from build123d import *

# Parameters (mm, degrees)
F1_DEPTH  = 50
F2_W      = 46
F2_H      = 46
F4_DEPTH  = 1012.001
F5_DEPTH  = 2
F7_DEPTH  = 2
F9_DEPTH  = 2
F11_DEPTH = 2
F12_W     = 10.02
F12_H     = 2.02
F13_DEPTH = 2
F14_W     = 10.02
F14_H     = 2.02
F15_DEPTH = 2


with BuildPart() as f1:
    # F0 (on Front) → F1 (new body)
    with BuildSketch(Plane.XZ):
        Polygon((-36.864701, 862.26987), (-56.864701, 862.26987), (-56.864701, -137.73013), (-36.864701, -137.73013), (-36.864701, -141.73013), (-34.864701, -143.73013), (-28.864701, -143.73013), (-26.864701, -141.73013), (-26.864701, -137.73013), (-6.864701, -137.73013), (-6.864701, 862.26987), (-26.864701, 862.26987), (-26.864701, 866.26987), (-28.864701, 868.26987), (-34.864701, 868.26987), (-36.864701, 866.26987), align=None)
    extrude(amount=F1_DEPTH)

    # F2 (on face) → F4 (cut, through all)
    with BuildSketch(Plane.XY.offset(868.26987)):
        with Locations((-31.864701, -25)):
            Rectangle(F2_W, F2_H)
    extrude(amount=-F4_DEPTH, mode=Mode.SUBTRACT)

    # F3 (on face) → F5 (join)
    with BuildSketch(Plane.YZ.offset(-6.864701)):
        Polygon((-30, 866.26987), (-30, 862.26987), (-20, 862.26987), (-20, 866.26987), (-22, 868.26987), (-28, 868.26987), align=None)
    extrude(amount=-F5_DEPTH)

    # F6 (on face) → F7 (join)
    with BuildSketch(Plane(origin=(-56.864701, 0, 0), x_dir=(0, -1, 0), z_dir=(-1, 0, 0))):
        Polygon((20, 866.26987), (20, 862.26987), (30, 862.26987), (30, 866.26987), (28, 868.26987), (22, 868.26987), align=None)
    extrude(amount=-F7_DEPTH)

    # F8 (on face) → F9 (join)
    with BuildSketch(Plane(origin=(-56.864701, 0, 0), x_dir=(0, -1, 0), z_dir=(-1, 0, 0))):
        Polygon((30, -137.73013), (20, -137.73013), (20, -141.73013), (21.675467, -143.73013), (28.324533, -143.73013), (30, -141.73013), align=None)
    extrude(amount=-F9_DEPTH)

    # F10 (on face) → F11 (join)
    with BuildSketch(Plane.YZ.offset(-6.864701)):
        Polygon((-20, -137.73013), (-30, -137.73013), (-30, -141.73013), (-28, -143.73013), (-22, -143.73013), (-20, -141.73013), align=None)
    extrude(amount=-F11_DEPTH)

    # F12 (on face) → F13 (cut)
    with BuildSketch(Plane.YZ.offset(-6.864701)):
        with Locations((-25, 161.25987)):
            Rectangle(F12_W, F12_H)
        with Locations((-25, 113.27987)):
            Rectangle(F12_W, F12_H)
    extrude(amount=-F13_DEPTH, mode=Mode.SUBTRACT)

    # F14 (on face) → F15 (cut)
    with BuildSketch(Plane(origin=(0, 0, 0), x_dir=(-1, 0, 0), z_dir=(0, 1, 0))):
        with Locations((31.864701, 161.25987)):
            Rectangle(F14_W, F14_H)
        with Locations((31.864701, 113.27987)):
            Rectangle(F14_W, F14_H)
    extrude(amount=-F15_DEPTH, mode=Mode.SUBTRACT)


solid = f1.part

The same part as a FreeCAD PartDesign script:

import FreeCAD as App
import Part
import Sketcher

V = App.Vector

doc = App.newDocument("Part")
body = doc.addObject("PartDesign::Body", "Body")

# Sketch on XZ plane
sketch1 = body.newObject("Sketcher::SketchObject", "Sketch")
sketch1.AttachmentSupport = (doc.getObject("XZ_Plane"), [""])
sketch1.MapMode = "FlatFace"
sketch1.addGeometry(Part.LineSegment(V(-36.9, 862.3, 0), V(-56.9, 862.3, 0)), False)
sketch1.addGeometry(Part.LineSegment(V(-56.9, 862.3, 0), V(-56.9, -137.7, 0)), False)
sketch1.addGeometry(Part.LineSegment(V(-56.9, -137.7, 0), V(-36.9, -137.7, 0)), False)
sketch1.addGeometry(Part.LineSegment(V(-36.9, -137.7, 0), V(-36.9, -141.7, 0)), False)
sketch1.addGeometry(Part.LineSegment(V(-36.9, -141.7, 0), V(-34.9, -143.7, 0)), False)
sketch1.addGeometry(Part.LineSegment(V(-34.9, -143.7, 0), V(-28.9, -143.7, 0)), False)
sketch1.addGeometry(Part.LineSegment(V(-28.9, -143.7, 0), V(-26.9, -141.7, 0)), False)
sketch1.addGeometry(Part.LineSegment(V(-26.9, -141.7, 0), V(-26.9, -137.7, 0)), False)
sketch1.addGeometry(Part.LineSegment(V(-26.9, -137.7, 0), V(-6.9, -137.7, 0)), False)
sketch1.addGeometry(Part.LineSegment(V(-6.9, -137.7, 0), V(-6.9, 862.3, 0)), False)
sketch1.addGeometry(Part.LineSegment(V(-6.9, 862.3, 0), V(-26.9, 862.3, 0)), False)
sketch1.addGeometry(Part.LineSegment(V(-26.9, 862.3, 0), V(-26.9, 866.3, 0)), False)
sketch1.addGeometry(Part.LineSegment(V(-26.9, 866.3, 0), V(-28.9, 868.3, 0)), False)
sketch1.addGeometry(Part.LineSegment(V(-28.9, 868.3, 0), V(-34.9, 868.3, 0)), False)
sketch1.addGeometry(Part.LineSegment(V(-34.9, 868.3, 0), V(-36.9, 866.3, 0)), False)
sketch1.addGeometry(Part.LineSegment(V(-36.9, 866.3, 0), V(-36.9, 862.3, 0)), False)
sketch1.addConstraint(Sketcher.Constraint("Coincident", 0, 2, 1, 1))
sketch1.addConstraint(Sketcher.Constraint("Coincident", 1, 2, 2, 1))
sketch1.addConstraint(Sketcher.Constraint("Coincident", 2, 2, 3, 1))
sketch1.addConstraint(Sketcher.Constraint("Coincident", 3, 2, 4, 1))
sketch1.addConstraint(Sketcher.Constraint("Coincident", 4, 2, 5, 1))
sketch1.addConstraint(Sketcher.Constraint("Coincident", 5, 2, 6, 1))
sketch1.addConstraint(Sketcher.Constraint("Coincident", 6, 2, 7, 1))
sketch1.addConstraint(Sketcher.Constraint("Coincident", 7, 2, 8, 1))
sketch1.addConstraint(Sketcher.Constraint("Coincident", 8, 2, 9, 1))
sketch1.addConstraint(Sketcher.Constraint("Coincident", 9, 2, 10, 1))
sketch1.addConstraint(Sketcher.Constraint("Coincident", 10, 2, 11, 1))
sketch1.addConstraint(Sketcher.Constraint("Coincident", 11, 2, 12, 1))
sketch1.addConstraint(Sketcher.Constraint("Coincident", 12, 2, 13, 1))
sketch1.addConstraint(Sketcher.Constraint("Coincident", 13, 2, 14, 1))
sketch1.addConstraint(Sketcher.Constraint("Coincident", 14, 2, 15, 1))
sketch1.addConstraint(Sketcher.Constraint("Coincident", 15, 2, 0, 1))
sketch1.addConstraint(Sketcher.Constraint("Horizontal", 0))
sketch1.addConstraint(Sketcher.Constraint("Vertical", 1))
sketch1.addConstraint(Sketcher.Constraint("Horizontal", 2))
sketch1.addConstraint(Sketcher.Constraint("Vertical", 3))
sketch1.addConstraint(Sketcher.Constraint("Horizontal", 5))
sketch1.addConstraint(Sketcher.Constraint("Vertical", 7))
sketch1.addConstraint(Sketcher.Constraint("Horizontal", 8))
sketch1.addConstraint(Sketcher.Constraint("Vertical", 9))
sketch1.addConstraint(Sketcher.Constraint("Horizontal", 10))
sketch1.addConstraint(Sketcher.Constraint("Vertical", 11))
sketch1.addConstraint(Sketcher.Constraint("Horizontal", 13))
sketch1.addConstraint(Sketcher.Constraint("Vertical", 15))
sketch1.addConstraint(Sketcher.Constraint("Perpendicular", 4, 6))
sketch1.addConstraint(Sketcher.Constraint("Perpendicular", 6, 12))
sketch1.addConstraint(Sketcher.Constraint("Perpendicular", 12, 14))
sketch1.addConstraint(Sketcher.Constraint("Horizontal", 3, 2, 6, 2))
sketch1.addConstraint(Sketcher.Constraint("Horizontal", 2, 2, 7, 2))
sketch1.addConstraint(Sketcher.Constraint("Horizontal", 0, 2, 9, 2))
sketch1.addConstraint(Sketcher.Constraint("Horizontal", 11, 2, 14, 2))
sketch1.addConstraint(Sketcher.Constraint("Vertical", 7, 2, 10, 2))
sketch1.addConstraint(Sketcher.Constraint("Vertical", 5, 2, 12, 2))
sketch1.addConstraint(Sketcher.Constraint("Vertical", 4, 2, 13, 2))
sketch1.addConstraint(Sketcher.Constraint("Vertical", 3, 2, 14, 2))
sketch1.addConstraint(Sketcher.Constraint("Equal", 2, 8))
sketch1.addConstraint(Sketcher.Constraint("Equal", 7, 11))
sketch1.addConstraint(Sketcher.Constraint("DistanceX", 0, 2, 0, 1, 20.0))
sketch1.addConstraint(Sketcher.Constraint("DistanceX", 5, 1, 5, 2, 6.0))
sketch1.addConstraint(Sketcher.Constraint("DistanceY", 1, 2, 1, 1, 1000.0))
sketch1.addConstraint(Sketcher.Constraint("DistanceY", 3, 2, 3, 1, 4.0))
sketch1.addConstraint(Sketcher.Constraint("DistanceX", 3, 2, 4, 2, 2.0))
sketch1.addConstraint(Sketcher.Constraint("DistanceX", 0, 2, -1, 1, 56.864701))
sketch1.addConstraint(Sketcher.Constraint("DistanceY", -1, 1, 0, 2, 862.26987))
pad1 = body.newObject("PartDesign::Pad", "Pad")
pad1.Profile = sketch1
pad1.Length = 50

# Sketch on XY plane
sketch2 = body.newObject("Sketcher::SketchObject", "Sketch001")
sketch2.AttachmentSupport = (doc.getObject("XY_Plane"), [""])
sketch2.MapMode = "FlatFace"
sketch2.AttachmentOffset = App.Placement(V(0, 0, 868.26987), App.Rotation())
sketch2.addGeometry(Part.LineSegment(V(-55, -2, 0), V(-55, -48, 0)), False)
sketch2.addGeometry(Part.LineSegment(V(-55, -48, 0), V(-9, -48, 0)), False)
sketch2.addGeometry(Part.LineSegment(V(-9, -48, 0), V(-9, -2, 0)), False)
sketch2.addGeometry(Part.LineSegment(V(-9, -2, 0), V(-55, -2, 0)), False)
sketch2.addConstraint(Sketcher.Constraint("Coincident", 0, 2, 1, 1))
sketch2.addConstraint(Sketcher.Constraint("Coincident", 1, 2, 2, 1))
sketch2.addConstraint(Sketcher.Constraint("Coincident", 2, 2, 3, 1))
sketch2.addConstraint(Sketcher.Constraint("Coincident", 3, 2, 0, 1))
sketch2.addConstraint(Sketcher.Constraint("Vertical", 0))
sketch2.addConstraint(Sketcher.Constraint("Horizontal", 1))
sketch2.addConstraint(Sketcher.Constraint("Vertical", 2))
sketch2.addConstraint(Sketcher.Constraint("Horizontal", 3))
sketch2.addConstraint(Sketcher.Constraint("Equal", 3, 0))
sketch2.addConstraint(Sketcher.Constraint("DistanceX", 1, 1, 1, 2, 46.0))
sketch2.addConstraint(Sketcher.Constraint("DistanceY", 0, 2, -1, 1, 48.0))
sketch2.addConstraint(Sketcher.Constraint("DistanceX", 0, 2, -1, 1, 54.864701))
pocket1 = body.newObject("PartDesign::Pocket", "Pocket")
pocket1.Profile = sketch2
pocket1.Type = "ThroughAll"

# Sketch on YZ plane
sketch3 = body.newObject("Sketcher::SketchObject", "Sketch002")
sketch3.AttachmentSupport = (doc.getObject("YZ_Plane"), [""])
sketch3.MapMode = "FlatFace"
sketch3.AttachmentOffset = App.Placement(V(0, 0, -6.864701), App.Rotation())
sketch3.addGeometry(Part.LineSegment(V(-30, 866.3, 0), V(-30, 862.3, 0)), False)
sketch3.addGeometry(Part.LineSegment(V(-30, 862.3, 0), V(-20, 862.3, 0)), False)
sketch3.addGeometry(Part.LineSegment(V(-20, 862.3, 0), V(-20, 866.3, 0)), False)
sketch3.addGeometry(Part.LineSegment(V(-20, 866.3, 0), V(-22, 868.3, 0)), False)
sketch3.addGeometry(Part.LineSegment(V(-22, 868.3, 0), V(-28, 868.3, 0)), False)
sketch3.addGeometry(Part.LineSegment(V(-28, 868.3, 0), V(-30, 866.3, 0)), False)
sketch3.addConstraint(Sketcher.Constraint("Coincident", 0, 2, 1, 1))
sketch3.addConstraint(Sketcher.Constraint("Coincident", 1, 2, 2, 1))
sketch3.addConstraint(Sketcher.Constraint("Coincident", 2, 2, 3, 1))
sketch3.addConstraint(Sketcher.Constraint("Coincident", 3, 2, 4, 1))
sketch3.addConstraint(Sketcher.Constraint("Coincident", 4, 2, 5, 1))
sketch3.addConstraint(Sketcher.Constraint("Coincident", 5, 2, 0, 1))
sketch3.addConstraint(Sketcher.Constraint("Vertical", 0))
sketch3.addConstraint(Sketcher.Constraint("Horizontal", 1))
sketch3.addConstraint(Sketcher.Constraint("Vertical", 2))
sketch3.addConstraint(Sketcher.Constraint("Horizontal", 4))
sketch3.addConstraint(Sketcher.Constraint("Perpendicular", 3, 5))
sketch3.addConstraint(Sketcher.Constraint("Horizontal", 2, 2, 5, 2))
sketch3.addConstraint(Sketcher.Constraint("Equal", 3, 5))
sketch3.addConstraint(Sketcher.Constraint("DistanceX", 1, 1, 1, 2, 10.0))
sketch3.addConstraint(Sketcher.Constraint("DistanceX", 4, 2, 4, 1, 6.0))
sketch3.addConstraint(Sketcher.Constraint("DistanceY", 0, 2, 0, 1, 4.0))
sketch3.addConstraint(Sketcher.Constraint("DistanceX", 0, 2, -1, 1, 30.0))
sketch3.addConstraint(Sketcher.Constraint("DistanceY", -1, 1, 0, 2, 862.26987))
pad2 = body.newObject("PartDesign::Pad", "Pad001")
pad2.Profile = sketch3
pad2.Length = 2
pad2.Reversed = True

# Sketch on YZ plane
sketch4 = body.newObject("Sketcher::SketchObject", "Sketch003")
sketch4.AttachmentSupport = (doc.getObject("YZ_Plane"), [""])
sketch4.MapMode = "FlatFace"
sketch4.AttachmentOffset = App.Placement(V(0, 0, -56.864701), App.Rotation())
sketch4.addGeometry(Part.LineSegment(V(-20, 866.3, 0), V(-20, 862.3, 0)), False)
sketch4.addGeometry(Part.LineSegment(V(-20, 862.3, 0), V(-30, 862.3, 0)), False)
sketch4.addGeometry(Part.LineSegment(V(-30, 862.3, 0), V(-30, 866.3, 0)), False)
sketch4.addGeometry(Part.LineSegment(V(-30, 866.3, 0), V(-28, 868.3, 0)), False)
sketch4.addGeometry(Part.LineSegment(V(-28, 868.3, 0), V(-22, 868.3, 0)), False)
sketch4.addGeometry(Part.LineSegment(V(-22, 868.3, 0), V(-20, 866.3, 0)), False)
sketch4.addConstraint(Sketcher.Constraint("Coincident", 0, 2, 1, 1))
sketch4.addConstraint(Sketcher.Constraint("Coincident", 1, 2, 2, 1))
sketch4.addConstraint(Sketcher.Constraint("Coincident", 2, 2, 3, 1))
sketch4.addConstraint(Sketcher.Constraint("Coincident", 3, 2, 4, 1))
sketch4.addConstraint(Sketcher.Constraint("Coincident", 4, 2, 5, 1))
sketch4.addConstraint(Sketcher.Constraint("Coincident", 5, 2, 0, 1))
sketch4.addConstraint(Sketcher.Constraint("Vertical", 0))
sketch4.addConstraint(Sketcher.Constraint("Horizontal", 1))
sketch4.addConstraint(Sketcher.Constraint("Vertical", 2))
sketch4.addConstraint(Sketcher.Constraint("Horizontal", 4))
sketch4.addConstraint(Sketcher.Constraint("Perpendicular", 3, 5))
sketch4.addConstraint(Sketcher.Constraint("Horizontal", 2, 2, 5, 2))
sketch4.addConstraint(Sketcher.Constraint("Equal", 3, 5))
sketch4.addConstraint(Sketcher.Constraint("DistanceX", 1, 2, 1, 1, 10.0))
sketch4.addConstraint(Sketcher.Constraint("DistanceX", 4, 1, 4, 2, 6.0))
sketch4.addConstraint(Sketcher.Constraint("DistanceY", 0, 2, 0, 1, 4.0))
sketch4.addConstraint(Sketcher.Constraint("DistanceX", 0, 2, -1, 1, 20.0))
sketch4.addConstraint(Sketcher.Constraint("DistanceY", -1, 1, 0, 2, 862.26987))
pad3 = body.newObject("PartDesign::Pad", "Pad002")
pad3.Profile = sketch4
pad3.Length = 2

# Sketch on YZ plane
sketch5 = body.newObject("Sketcher::SketchObject", "Sketch004")
sketch5.AttachmentSupport = (doc.getObject("YZ_Plane"), [""])
sketch5.MapMode = "FlatFace"
sketch5.AttachmentOffset = App.Placement(V(0, 0, -56.864701), App.Rotation())
sketch5.addGeometry(Part.LineSegment(V(-30, -137.7, 0), V(-20, -137.7, 0)), False)
sketch5.addGeometry(Part.LineSegment(V(-20, -137.7, 0), V(-20, -141.7, 0)), False)
sketch5.addGeometry(Part.LineSegment(V(-20, -141.7, 0), V(-21.7, -143.7, 0)), False)
sketch5.addGeometry(Part.LineSegment(V(-21.7, -143.7, 0), V(-28.3, -143.7, 0)), False)
sketch5.addGeometry(Part.LineSegment(V(-28.3, -143.7, 0), V(-30, -141.7, 0)), False)
sketch5.addGeometry(Part.LineSegment(V(-30, -141.7, 0), V(-30, -137.7, 0)), False)
sketch5.addConstraint(Sketcher.Constraint("Coincident", 0, 2, 1, 1))
sketch5.addConstraint(Sketcher.Constraint("Coincident", 1, 2, 2, 1))
sketch5.addConstraint(Sketcher.Constraint("Coincident", 2, 2, 3, 1))
sketch5.addConstraint(Sketcher.Constraint("Coincident", 3, 2, 4, 1))
sketch5.addConstraint(Sketcher.Constraint("Coincident", 4, 2, 5, 1))
sketch5.addConstraint(Sketcher.Constraint("Coincident", 5, 2, 0, 1))
sketch5.addConstraint(Sketcher.Constraint("Horizontal", 0))
sketch5.addConstraint(Sketcher.Constraint("Vertical", 1))
sketch5.addConstraint(Sketcher.Constraint("Horizontal", 3))
sketch5.addConstraint(Sketcher.Constraint("Vertical", 5))
sketch5.addConstraint(Sketcher.Constraint("Horizontal", 1, 2, 4, 2))
sketch5.addConstraint(Sketcher.Constraint("Equal", 2, 4))
sketch5.addConstraint(Sketcher.Constraint("DistanceX", 0, 1, 0, 2, 10.0))
sketch5.addConstraint(Sketcher.Constraint("DistanceY", 1, 2, 1, 1, 4.0))
sketch5.addConstraint(Sketcher.Constraint("DistanceX", 0, 2, -1, 1, 20.0))
sketch5.addConstraint(Sketcher.Constraint("DistanceY", 2, 2, 1, 2, 2.0))
sketch5.addConstraint(Sketcher.Constraint("Distance", 2, 2.609059))
sketch5.addConstraint(Sketcher.Constraint("DistanceY", 0, 2, -1, 1, 137.73013))
pad4 = body.newObject("PartDesign::Pad", "Pad003")
pad4.Profile = sketch5
pad4.Length = 2

# Sketch on YZ plane
sketch6 = body.newObject("Sketcher::SketchObject", "Sketch005")
sketch6.AttachmentSupport = (doc.getObject("YZ_Plane"), [""])
sketch6.MapMode = "FlatFace"
sketch6.AttachmentOffset = App.Placement(V(0, 0, -6.864701), App.Rotation())
sketch6.addGeometry(Part.LineSegment(V(-20, -137.7, 0), V(-30, -137.7, 0)), False)
sketch6.addGeometry(Part.LineSegment(V(-30, -137.7, 0), V(-30, -141.7, 0)), False)
sketch6.addGeometry(Part.LineSegment(V(-30, -141.7, 0), V(-28, -143.7, 0)), False)
sketch6.addGeometry(Part.LineSegment(V(-28, -143.7, 0), V(-22, -143.7, 0)), False)
sketch6.addGeometry(Part.LineSegment(V(-22, -143.7, 0), V(-20, -141.7, 0)), False)
sketch6.addGeometry(Part.LineSegment(V(-20, -141.7, 0), V(-20, -137.7, 0)), False)
sketch6.addConstraint(Sketcher.Constraint("Coincident", 0, 2, 1, 1))
sketch6.addConstraint(Sketcher.Constraint("Coincident", 1, 2, 2, 1))
sketch6.addConstraint(Sketcher.Constraint("Coincident", 2, 2, 3, 1))
sketch6.addConstraint(Sketcher.Constraint("Coincident", 3, 2, 4, 1))
sketch6.addConstraint(Sketcher.Constraint("Coincident", 4, 2, 5, 1))
sketch6.addConstraint(Sketcher.Constraint("Coincident", 5, 2, 0, 1))
sketch6.addConstraint(Sketcher.Constraint("Horizontal", 0))
sketch6.addConstraint(Sketcher.Constraint("Vertical", 1))
sketch6.addConstraint(Sketcher.Constraint("Horizontal", 3))
sketch6.addConstraint(Sketcher.Constraint("Vertical", 5))
sketch6.addConstraint(Sketcher.Constraint("Perpendicular", 2, 4))
sketch6.addConstraint(Sketcher.Constraint("Horizontal", 1, 2, 4, 2))
sketch6.addConstraint(Sketcher.Constraint("Equal", 2, 4))
sketch6.addConstraint(Sketcher.Constraint("DistanceX", 0, 2, 0, 1, 10.0))
sketch6.addConstraint(Sketcher.Constraint("DistanceX", 3, 1, 3, 2, 6.0))
sketch6.addConstraint(Sketcher.Constraint("DistanceY", 1, 2, 1, 1, 4.0))
sketch6.addConstraint(Sketcher.Constraint("DistanceX", 0, 2, -1, 1, 30.0))
sketch6.addConstraint(Sketcher.Constraint("DistanceY", 0, 2, -1, 1, 137.73013))
pad5 = body.newObject("PartDesign::Pad", "Pad004")
pad5.Profile = sketch6
pad5.Length = 2
pad5.Reversed = True

# Sketch on YZ plane
sketch7 = body.newObject("Sketcher::SketchObject", "Sketch006")
sketch7.AttachmentSupport = (doc.getObject("YZ_Plane"), [""])
sketch7.MapMode = "FlatFace"
sketch7.AttachmentOffset = App.Placement(V(0, 0, -6.864701), App.Rotation())
sketch7.addGeometry(Part.LineSegment(V(-30, 162.3, 0), V(-30, 160.2, 0)), False)
sketch7.addGeometry(Part.LineSegment(V(-30, 160.2, 0), V(-20, 160.2, 0)), False)
sketch7.addGeometry(Part.LineSegment(V(-20, 160.2, 0), V(-20, 162.3, 0)), False)
sketch7.addGeometry(Part.LineSegment(V(-20, 162.3, 0), V(-30, 162.3, 0)), False)
sketch7.addGeometry(Part.LineSegment(V(-30, 114.3, 0), V(-30, 112.3, 0)), False)
sketch7.addGeometry(Part.LineSegment(V(-30, 112.3, 0), V(-20, 112.3, 0)), False)
sketch7.addGeometry(Part.LineSegment(V(-20, 112.3, 0), V(-20, 114.3, 0)), False)
sketch7.addGeometry(Part.LineSegment(V(-20, 114.3, 0), V(-30, 114.3, 0)), False)
sketch7.addConstraint(Sketcher.Constraint("Coincident", 0, 2, 1, 1))
sketch7.addConstraint(Sketcher.Constraint("Coincident", 1, 2, 2, 1))
sketch7.addConstraint(Sketcher.Constraint("Coincident", 2, 2, 3, 1))
sketch7.addConstraint(Sketcher.Constraint("Coincident", 3, 2, 0, 1))
sketch7.addConstraint(Sketcher.Constraint("Coincident", 4, 2, 5, 1))
sketch7.addConstraint(Sketcher.Constraint("Coincident", 5, 2, 6, 1))
sketch7.addConstraint(Sketcher.Constraint("Coincident", 6, 2, 7, 1))
sketch7.addConstraint(Sketcher.Constraint("Coincident", 7, 2, 4, 1))
sketch7.addConstraint(Sketcher.Constraint("Vertical", 0))
sketch7.addConstraint(Sketcher.Constraint("Horizontal", 1))
sketch7.addConstraint(Sketcher.Constraint("Vertical", 2))
sketch7.addConstraint(Sketcher.Constraint("Horizontal", 3))
sketch7.addConstraint(Sketcher.Constraint("Vertical", 4))
sketch7.addConstraint(Sketcher.Constraint("Horizontal", 5))
sketch7.addConstraint(Sketcher.Constraint("Vertical", 6))
sketch7.addConstraint(Sketcher.Constraint("Horizontal", 7))
sketch7.addConstraint(Sketcher.Constraint("Vertical", 3, 2, 4, 2))
sketch7.addConstraint(Sketcher.Constraint("Vertical", 2, 2, 5, 2))
sketch7.addConstraint(Sketcher.Constraint("Equal", 2, 4))
sketch7.addConstraint(Sketcher.Constraint("DistanceY", 4, 2, 3, 2, 50.0))
sketch7.addConstraint(Sketcher.Constraint("DistanceX", 1, 1, 1, 2, 10.02))
sketch7.addConstraint(Sketcher.Constraint("DistanceY", 0, 2, 0, 1, 2.02))
sketch7.addConstraint(Sketcher.Constraint("DistanceX", 0, 2, -1, 1, 30.01))
sketch7.addConstraint(Sketcher.Constraint("DistanceY", -1, 1, 0, 2, 160.24987))
pocket2 = body.newObject("PartDesign::Pocket", "Pocket001")
pocket2.Profile = sketch7
pocket2.Length = 2

# Sketch on XZ plane
sketch8 = body.newObject("Sketcher::SketchObject", "Sketch007")
sketch8.AttachmentSupport = (doc.getObject("XZ_Plane"), [""])
sketch8.MapMode = "FlatFace"
sketch8.addGeometry(Part.LineSegment(V(-26.9, 162.3, 0), V(-26.9, 160.2, 0)), False)
sketch8.addGeometry(Part.LineSegment(V(-26.9, 160.2, 0), V(-36.9, 160.2, 0)), False)
sketch8.addGeometry(Part.LineSegment(V(-36.9, 160.2, 0), V(-36.9, 162.3, 0)), False)
sketch8.addGeometry(Part.LineSegment(V(-36.9, 162.3, 0), V(-26.9, 162.3, 0)), False)
sketch8.addGeometry(Part.LineSegment(V(-26.9, 114.3, 0), V(-26.9, 112.3, 0)), False)
sketch8.addGeometry(Part.LineSegment(V(-26.9, 112.3, 0), V(-36.9, 112.3, 0)), False)
sketch8.addGeometry(Part.LineSegment(V(-36.9, 112.3, 0), V(-36.9, 114.3, 0)), False)
sketch8.addGeometry(Part.LineSegment(V(-36.9, 114.3, 0), V(-26.9, 114.3, 0)), False)
sketch8.addConstraint(Sketcher.Constraint("Coincident", 0, 2, 1, 1))
sketch8.addConstraint(Sketcher.Constraint("Coincident", 1, 2, 2, 1))
sketch8.addConstraint(Sketcher.Constraint("Coincident", 2, 2, 3, 1))
sketch8.addConstraint(Sketcher.Constraint("Coincident", 3, 2, 0, 1))
sketch8.addConstraint(Sketcher.Constraint("Coincident", 4, 2, 5, 1))
sketch8.addConstraint(Sketcher.Constraint("Coincident", 5, 2, 6, 1))
sketch8.addConstraint(Sketcher.Constraint("Coincident", 6, 2, 7, 1))
sketch8.addConstraint(Sketcher.Constraint("Coincident", 7, 2, 4, 1))
sketch8.addConstraint(Sketcher.Constraint("Vertical", 0))
sketch8.addConstraint(Sketcher.Constraint("Horizontal", 1))
sketch8.addConstraint(Sketcher.Constraint("Vertical", 2))
sketch8.addConstraint(Sketcher.Constraint("Horizontal", 3))
sketch8.addConstraint(Sketcher.Constraint("Vertical", 4))
sketch8.addConstraint(Sketcher.Constraint("Horizontal", 5))
sketch8.addConstraint(Sketcher.Constraint("Vertical", 6))
sketch8.addConstraint(Sketcher.Constraint("Horizontal", 7))
sketch8.addConstraint(Sketcher.Constraint("Vertical", 3, 2, 4, 2))
sketch8.addConstraint(Sketcher.Constraint("Vertical", 2, 2, 5, 2))
sketch8.addConstraint(Sketcher.Constraint("Equal", 2, 4))
sketch8.addConstraint(Sketcher.Constraint("DistanceY", 4, 2, 3, 2, 50.0))
sketch8.addConstraint(Sketcher.Constraint("DistanceX", 1, 2, 1, 1, 10.02))
sketch8.addConstraint(Sketcher.Constraint("DistanceY", 0, 2, 0, 1, 2.02))
sketch8.addConstraint(Sketcher.Constraint("DistanceX", 0, 2, -1, 1, 26.854701))
sketch8.addConstraint(Sketcher.Constraint("DistanceY", -1, 1, 0, 2, 160.24987))
pocket3 = body.newObject("PartDesign::Pocket", "Pocket002")
pocket3.Profile = sketch8
pocket3.Length = 2
pocket3.Reversed = True

doc.recompute()
